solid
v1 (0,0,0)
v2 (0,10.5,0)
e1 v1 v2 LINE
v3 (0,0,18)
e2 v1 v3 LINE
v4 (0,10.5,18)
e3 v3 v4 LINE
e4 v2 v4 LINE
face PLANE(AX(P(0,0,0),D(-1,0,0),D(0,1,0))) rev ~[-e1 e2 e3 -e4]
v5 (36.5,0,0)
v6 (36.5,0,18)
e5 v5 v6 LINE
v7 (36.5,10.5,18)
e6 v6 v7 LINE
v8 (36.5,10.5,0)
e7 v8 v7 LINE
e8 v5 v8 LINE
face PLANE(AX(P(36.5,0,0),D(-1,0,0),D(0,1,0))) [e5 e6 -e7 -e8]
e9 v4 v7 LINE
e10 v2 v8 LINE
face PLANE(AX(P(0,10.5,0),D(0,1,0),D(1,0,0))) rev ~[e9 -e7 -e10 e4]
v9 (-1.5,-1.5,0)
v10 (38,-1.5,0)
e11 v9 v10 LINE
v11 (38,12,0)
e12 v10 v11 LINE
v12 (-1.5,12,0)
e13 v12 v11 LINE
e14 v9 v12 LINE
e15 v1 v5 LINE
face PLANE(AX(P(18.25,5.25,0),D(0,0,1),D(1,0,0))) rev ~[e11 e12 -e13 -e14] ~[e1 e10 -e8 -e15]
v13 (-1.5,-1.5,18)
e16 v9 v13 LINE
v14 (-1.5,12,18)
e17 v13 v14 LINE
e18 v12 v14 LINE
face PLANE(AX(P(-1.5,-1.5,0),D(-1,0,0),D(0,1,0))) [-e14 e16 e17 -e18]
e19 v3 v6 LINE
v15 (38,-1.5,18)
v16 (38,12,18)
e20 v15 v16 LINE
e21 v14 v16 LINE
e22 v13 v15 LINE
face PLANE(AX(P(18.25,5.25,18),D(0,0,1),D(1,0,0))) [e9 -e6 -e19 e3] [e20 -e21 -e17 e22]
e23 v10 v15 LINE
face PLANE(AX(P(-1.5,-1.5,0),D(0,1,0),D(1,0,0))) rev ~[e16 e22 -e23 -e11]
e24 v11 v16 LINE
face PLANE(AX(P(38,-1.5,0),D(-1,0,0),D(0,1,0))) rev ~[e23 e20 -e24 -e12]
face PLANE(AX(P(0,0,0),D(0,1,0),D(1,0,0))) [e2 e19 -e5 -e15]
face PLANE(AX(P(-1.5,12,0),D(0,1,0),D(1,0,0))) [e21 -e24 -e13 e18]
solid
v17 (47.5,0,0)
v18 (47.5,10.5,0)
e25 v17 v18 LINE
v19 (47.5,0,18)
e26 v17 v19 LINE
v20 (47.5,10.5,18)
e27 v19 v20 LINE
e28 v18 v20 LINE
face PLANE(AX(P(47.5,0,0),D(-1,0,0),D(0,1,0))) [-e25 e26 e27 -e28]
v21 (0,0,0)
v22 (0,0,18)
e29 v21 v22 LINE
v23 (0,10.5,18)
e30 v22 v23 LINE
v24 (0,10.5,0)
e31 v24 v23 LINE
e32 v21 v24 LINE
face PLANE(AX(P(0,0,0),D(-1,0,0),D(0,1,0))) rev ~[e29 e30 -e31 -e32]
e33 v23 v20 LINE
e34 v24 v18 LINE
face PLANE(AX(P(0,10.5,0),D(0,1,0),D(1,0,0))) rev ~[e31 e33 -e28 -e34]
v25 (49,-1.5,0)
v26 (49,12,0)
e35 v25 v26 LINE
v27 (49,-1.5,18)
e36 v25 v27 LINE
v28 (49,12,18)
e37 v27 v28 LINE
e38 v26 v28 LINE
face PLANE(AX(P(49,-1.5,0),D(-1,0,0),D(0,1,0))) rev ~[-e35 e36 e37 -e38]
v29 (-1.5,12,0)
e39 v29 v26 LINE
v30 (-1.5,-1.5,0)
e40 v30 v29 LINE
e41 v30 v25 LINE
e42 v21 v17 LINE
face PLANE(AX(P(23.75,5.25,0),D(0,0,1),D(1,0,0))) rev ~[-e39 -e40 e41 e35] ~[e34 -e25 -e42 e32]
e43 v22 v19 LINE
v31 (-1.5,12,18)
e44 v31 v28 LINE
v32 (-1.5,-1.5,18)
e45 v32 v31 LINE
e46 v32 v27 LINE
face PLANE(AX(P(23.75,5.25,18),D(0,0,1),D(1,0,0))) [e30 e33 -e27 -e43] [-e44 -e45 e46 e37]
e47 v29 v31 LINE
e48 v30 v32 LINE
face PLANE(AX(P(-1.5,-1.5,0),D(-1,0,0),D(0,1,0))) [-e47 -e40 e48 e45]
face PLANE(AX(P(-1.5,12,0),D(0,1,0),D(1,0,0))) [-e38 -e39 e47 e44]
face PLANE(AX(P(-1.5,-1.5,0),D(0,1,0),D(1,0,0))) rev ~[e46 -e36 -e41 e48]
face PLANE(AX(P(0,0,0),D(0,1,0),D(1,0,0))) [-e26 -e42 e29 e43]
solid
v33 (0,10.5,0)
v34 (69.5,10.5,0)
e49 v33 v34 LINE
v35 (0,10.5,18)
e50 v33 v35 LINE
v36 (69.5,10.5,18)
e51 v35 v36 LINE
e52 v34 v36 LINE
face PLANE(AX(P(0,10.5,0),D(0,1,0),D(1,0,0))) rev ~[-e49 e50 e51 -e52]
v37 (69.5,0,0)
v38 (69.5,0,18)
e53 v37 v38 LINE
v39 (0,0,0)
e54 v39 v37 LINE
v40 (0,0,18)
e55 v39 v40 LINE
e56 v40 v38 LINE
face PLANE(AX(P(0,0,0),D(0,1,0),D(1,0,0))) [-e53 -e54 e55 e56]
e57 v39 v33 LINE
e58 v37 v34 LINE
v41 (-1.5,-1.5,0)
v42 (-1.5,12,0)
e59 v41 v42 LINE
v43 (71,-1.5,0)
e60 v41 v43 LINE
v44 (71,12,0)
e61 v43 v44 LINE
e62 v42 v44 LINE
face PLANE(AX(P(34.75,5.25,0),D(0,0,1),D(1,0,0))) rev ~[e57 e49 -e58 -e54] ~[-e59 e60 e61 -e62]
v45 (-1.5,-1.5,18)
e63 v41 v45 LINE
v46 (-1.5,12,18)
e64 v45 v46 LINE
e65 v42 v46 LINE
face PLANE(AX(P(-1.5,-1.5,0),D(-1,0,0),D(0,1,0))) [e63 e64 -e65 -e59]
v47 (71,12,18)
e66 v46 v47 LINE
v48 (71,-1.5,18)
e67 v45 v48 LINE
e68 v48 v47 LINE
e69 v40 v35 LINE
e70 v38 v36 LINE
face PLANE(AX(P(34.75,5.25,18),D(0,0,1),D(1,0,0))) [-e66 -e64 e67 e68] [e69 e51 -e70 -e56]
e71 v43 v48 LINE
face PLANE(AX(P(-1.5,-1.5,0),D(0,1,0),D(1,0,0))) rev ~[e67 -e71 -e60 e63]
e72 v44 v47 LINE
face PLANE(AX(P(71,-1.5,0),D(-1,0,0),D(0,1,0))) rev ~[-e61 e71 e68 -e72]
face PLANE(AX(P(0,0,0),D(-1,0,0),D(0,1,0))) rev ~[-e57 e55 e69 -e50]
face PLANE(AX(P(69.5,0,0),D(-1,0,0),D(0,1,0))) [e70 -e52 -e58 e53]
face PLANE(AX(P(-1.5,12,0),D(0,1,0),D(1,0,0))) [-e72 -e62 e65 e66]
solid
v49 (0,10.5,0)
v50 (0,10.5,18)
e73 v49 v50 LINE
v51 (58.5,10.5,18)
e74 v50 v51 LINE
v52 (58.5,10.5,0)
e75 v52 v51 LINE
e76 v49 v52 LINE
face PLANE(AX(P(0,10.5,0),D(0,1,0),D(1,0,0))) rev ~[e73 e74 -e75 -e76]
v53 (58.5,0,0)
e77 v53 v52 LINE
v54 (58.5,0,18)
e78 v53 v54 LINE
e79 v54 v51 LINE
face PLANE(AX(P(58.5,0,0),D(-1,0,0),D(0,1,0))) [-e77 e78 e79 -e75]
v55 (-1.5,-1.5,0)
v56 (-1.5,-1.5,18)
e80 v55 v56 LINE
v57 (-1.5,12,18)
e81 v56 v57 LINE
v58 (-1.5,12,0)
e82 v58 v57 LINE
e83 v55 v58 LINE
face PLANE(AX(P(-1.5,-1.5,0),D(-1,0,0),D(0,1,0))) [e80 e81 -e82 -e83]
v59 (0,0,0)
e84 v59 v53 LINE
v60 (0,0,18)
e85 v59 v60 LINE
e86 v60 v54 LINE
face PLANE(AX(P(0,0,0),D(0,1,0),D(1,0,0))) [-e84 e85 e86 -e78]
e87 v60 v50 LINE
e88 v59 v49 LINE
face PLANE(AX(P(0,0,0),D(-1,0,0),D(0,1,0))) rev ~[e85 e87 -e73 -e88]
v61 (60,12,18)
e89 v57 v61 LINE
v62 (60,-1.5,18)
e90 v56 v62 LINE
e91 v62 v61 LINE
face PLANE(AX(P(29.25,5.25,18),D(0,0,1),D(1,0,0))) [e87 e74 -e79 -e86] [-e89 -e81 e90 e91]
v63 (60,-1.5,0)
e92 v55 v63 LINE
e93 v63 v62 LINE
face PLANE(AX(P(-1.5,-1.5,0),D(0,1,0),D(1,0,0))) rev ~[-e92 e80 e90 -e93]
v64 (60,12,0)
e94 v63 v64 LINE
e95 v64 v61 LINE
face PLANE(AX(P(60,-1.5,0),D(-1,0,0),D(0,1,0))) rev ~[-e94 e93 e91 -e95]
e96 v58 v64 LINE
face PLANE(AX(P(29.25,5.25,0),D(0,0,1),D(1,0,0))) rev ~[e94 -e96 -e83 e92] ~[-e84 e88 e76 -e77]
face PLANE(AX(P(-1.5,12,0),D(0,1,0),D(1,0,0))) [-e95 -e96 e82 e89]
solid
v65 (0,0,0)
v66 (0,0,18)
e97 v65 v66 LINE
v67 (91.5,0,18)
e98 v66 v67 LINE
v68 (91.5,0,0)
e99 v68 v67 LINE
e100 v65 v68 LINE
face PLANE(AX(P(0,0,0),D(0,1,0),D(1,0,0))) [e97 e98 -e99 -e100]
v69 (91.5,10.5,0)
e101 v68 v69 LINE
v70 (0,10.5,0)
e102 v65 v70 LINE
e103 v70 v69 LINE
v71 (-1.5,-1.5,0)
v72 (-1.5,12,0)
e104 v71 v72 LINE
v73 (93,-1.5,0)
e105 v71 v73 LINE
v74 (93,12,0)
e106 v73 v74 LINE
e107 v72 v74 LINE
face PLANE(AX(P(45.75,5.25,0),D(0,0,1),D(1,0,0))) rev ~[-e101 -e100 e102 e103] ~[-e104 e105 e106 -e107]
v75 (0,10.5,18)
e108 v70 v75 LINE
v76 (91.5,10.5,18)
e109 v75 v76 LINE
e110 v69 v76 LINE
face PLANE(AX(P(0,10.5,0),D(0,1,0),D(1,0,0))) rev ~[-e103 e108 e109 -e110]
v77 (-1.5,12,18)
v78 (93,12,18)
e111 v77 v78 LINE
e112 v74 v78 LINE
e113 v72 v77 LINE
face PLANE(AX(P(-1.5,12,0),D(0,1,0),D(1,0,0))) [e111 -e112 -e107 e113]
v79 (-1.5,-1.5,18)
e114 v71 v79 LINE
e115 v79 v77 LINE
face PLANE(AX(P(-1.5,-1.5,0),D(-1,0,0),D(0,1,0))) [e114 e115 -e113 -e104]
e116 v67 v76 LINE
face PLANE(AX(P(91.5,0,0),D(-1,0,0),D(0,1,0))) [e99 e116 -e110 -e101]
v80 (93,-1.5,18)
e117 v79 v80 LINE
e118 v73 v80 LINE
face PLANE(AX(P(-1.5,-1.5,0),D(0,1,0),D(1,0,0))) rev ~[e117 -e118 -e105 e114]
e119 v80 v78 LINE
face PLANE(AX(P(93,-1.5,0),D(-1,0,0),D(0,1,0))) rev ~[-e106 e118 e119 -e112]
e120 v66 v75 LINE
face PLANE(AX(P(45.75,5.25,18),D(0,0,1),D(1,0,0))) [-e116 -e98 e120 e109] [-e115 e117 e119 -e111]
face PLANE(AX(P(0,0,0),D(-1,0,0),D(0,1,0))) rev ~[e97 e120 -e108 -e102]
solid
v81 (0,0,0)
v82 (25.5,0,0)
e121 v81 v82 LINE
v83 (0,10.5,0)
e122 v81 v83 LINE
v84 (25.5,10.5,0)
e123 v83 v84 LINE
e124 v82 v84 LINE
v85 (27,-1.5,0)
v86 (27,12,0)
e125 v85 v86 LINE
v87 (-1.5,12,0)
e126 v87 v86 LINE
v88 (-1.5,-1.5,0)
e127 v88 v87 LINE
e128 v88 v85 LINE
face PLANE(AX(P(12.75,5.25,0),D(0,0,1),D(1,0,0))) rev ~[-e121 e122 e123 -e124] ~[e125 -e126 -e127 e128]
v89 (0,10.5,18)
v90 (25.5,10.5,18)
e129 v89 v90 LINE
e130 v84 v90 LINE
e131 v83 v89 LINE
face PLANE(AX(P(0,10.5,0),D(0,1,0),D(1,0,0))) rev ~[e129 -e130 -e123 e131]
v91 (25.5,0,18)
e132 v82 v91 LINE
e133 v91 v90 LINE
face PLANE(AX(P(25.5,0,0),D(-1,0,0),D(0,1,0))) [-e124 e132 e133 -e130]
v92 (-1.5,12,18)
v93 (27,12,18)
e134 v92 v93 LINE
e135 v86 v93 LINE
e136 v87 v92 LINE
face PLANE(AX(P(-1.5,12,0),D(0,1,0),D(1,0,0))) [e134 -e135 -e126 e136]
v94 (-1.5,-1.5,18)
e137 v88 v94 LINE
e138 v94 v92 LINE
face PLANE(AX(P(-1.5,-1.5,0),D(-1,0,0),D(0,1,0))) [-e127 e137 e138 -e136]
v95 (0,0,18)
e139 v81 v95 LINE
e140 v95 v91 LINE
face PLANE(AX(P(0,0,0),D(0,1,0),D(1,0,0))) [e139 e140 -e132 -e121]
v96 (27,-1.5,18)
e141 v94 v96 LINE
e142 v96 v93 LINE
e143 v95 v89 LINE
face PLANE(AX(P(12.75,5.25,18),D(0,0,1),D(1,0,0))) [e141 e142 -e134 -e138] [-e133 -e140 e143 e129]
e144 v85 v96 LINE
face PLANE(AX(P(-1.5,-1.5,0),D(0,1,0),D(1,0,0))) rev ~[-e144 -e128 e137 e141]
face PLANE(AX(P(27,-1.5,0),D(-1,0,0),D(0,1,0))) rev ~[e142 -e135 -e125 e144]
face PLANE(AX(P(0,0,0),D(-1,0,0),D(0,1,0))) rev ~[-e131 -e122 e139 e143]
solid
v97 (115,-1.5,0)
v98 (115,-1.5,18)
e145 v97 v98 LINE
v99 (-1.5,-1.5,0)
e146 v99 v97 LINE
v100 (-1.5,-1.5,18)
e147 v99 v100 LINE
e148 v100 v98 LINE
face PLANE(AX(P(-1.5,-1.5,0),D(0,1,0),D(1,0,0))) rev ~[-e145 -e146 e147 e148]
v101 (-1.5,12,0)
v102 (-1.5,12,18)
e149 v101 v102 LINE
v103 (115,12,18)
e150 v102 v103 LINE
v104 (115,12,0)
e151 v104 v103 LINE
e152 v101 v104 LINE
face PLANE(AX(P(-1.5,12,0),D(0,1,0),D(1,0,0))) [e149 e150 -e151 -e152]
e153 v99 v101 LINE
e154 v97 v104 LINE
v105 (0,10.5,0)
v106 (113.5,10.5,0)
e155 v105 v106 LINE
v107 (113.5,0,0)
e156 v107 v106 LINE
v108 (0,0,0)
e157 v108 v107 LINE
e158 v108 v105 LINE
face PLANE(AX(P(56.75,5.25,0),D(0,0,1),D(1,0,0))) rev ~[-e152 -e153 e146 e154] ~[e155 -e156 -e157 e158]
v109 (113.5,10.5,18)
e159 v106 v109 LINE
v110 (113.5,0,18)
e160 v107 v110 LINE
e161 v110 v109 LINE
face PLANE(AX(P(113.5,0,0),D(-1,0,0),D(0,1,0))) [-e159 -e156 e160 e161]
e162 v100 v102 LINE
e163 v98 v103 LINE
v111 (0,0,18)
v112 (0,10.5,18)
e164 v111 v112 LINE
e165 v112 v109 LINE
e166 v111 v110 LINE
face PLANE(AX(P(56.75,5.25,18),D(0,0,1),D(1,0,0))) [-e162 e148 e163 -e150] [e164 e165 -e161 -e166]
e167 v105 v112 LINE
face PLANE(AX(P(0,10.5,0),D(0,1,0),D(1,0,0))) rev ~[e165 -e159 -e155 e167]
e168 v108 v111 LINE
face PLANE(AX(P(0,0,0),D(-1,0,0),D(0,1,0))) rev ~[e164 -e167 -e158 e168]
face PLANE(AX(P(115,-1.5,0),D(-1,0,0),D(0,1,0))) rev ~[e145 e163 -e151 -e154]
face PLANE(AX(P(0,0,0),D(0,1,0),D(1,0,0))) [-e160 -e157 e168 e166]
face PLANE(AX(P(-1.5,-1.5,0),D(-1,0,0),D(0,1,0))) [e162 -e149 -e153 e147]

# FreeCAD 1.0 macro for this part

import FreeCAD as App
import Part
import Sketcher


def add_polygon(sketch, points):
    """Adds a closed chain of lines whose ends are joined by coincident constraints."""
    first, n = sketch.GeometryCount, len(points)
    for a, b in zip(points, points[1:] + points[:1]):
        sketch.addGeometry(Part.LineSegment(App.Vector(*a, 0), App.Vector(*b, 0)), False)
    for i in range(n):
        sketch.addConstraint(Sketcher.Constraint("Coincident", first + i, 2, first + (i + 1) % n, 1))

doc = App.newDocument("Part")
body = doc.addObject("PartDesign::Body", "Body")

sketch1 = body.newObject("Sketcher::SketchObject", "Sketch")
sketch1.AttachmentSupport = (doc.getObject("XY_Plane"), [""])
sketch1.MapMode = "FlatFace"
add_polygon(sketch1, [(-1.5, 12), (-1.5, -1.5), (71, -1.5), (71, 12)])
add_polygon(sketch1, [(69.5, 0), (0, 0), (0, 10.5), (69.5, 10.5)])
sketch1.addConstraint([
    Sketcher.Constraint("Vertical", 0),
    Sketcher.Constraint("Horizontal", 1),
    Sketcher.Constraint("Vertical", 2),
    Sketcher.Constraint("Horizontal", 3),
    Sketcher.Constraint("Horizontal", 4),
    Sketcher.Constraint("Vertical", 5),
    Sketcher.Constraint("Horizontal", 6),
    Sketcher.Constraint("Vertical", 7),
    Sketcher.Constraint("Coincident", 4, 2, -1, 1),
    Sketcher.Constraint("DistanceX", 1, 1, 1, 2, 72.5),
    Sketcher.Constraint("DistanceX", 4, 2, 4, 1, 69.5),
    Sketcher.Constraint("DistanceY", 0, 2, 0, 1, 13.5),
    Sketcher.Constraint("DistanceY", 5, 1, 5, 2, 10.5),
    Sketcher.Constraint("DistanceX", -1, 1, 1, 2, 71.0),
    Sketcher.Constraint("DistanceY", -1, 1, 2, 2, 12.0),
])
pad1 = body.newObject("PartDesign::Pad", "Pad")
pad1.Profile = sketch1
pad1.Length = 18
body2 = doc.addObject("PartDesign::Body", "Body001")

sketch2 = body2.newObject("Sketcher::SketchObject", "Sketch001")
sketch2.AttachmentSupport = (doc.getObject("XY_Plane001"), [""])
sketch2.MapMode = "FlatFace"
add_polygon(sketch2, [(-1.5, 12), (-1.5, -1.5), (27, -1.5), (27, 12)])
add_polygon(sketch2, [(25.5, 0), (0, 0), (0, 10.5), (25.5, 10.5)])
sketch2.addConstraint([
    Sketcher.Constraint("Vertical", 0),
    Sketcher.Constraint("Horizontal", 1),
    Sketcher.Constraint("Vertical", 2),
    Sketcher.Constraint("Horizontal", 3),
    Sketcher.Constraint("Horizontal", 4),
    Sketcher.Constraint("Vertical", 5),
    Sketcher.Constraint("Horizontal", 6),
    Sketcher.Constraint("Vertical", 7),
    Sketcher.Constraint("Coincident", 4, 2, -1, 1),
    Sketcher.Constraint("DistanceX", 1, 1, 1, 2, 28.5),
    Sketcher.Constraint("DistanceX", 4, 2, 4, 1, 25.5),
    Sketcher.Constraint("DistanceY", 0, 2, 0, 1, 13.5),
    Sketcher.Constraint("DistanceY", 5, 1, 5, 2, 10.5),
    Sketcher.Constraint("DistanceX", -1, 1, 1, 2, 27.0),
    Sketcher.Constraint("DistanceY", -1, 1, 2, 2, 12.0),
])
pad2 = body2.newObject("PartDesign::Pad", "Pad001")
pad2.Profile = sketch2
pad2.Length = 18
body3 = doc.addObject("PartDesign::Body", "Body002")

sketch3 = body3.newObject("Sketcher::SketchObject", "Sketch002")
sketch3.AttachmentSupport = (doc.getObject("XY_Plane002"), [""])
sketch3.MapMode = "FlatFace"
add_polygon(sketch3, [(-1.5, 12), (-1.5, -1.5), (38, -1.5), (38, 12)])
add_polygon(sketch3, [(36.5, 0), (0, 0), (0, 10.5), (36.5, 10.5)])
sketch3.addConstraint([
    Sketcher.Constraint("Vertical", 0),
    Sketcher.Constraint("Horizontal", 1),
    Sketcher.Constraint("Vertical", 2),
    Sketcher.Constraint("Horizontal", 3),
    Sketcher.Constraint("Horizontal", 4),
    Sketcher.Constraint("Vertical", 5),
    Sketcher.Constraint("Horizontal", 6),
    Sketcher.Constraint("Vertical", 7),
    Sketcher.Constraint("Coincident", 4, 2, -1, 1),
    Sketcher.Constraint("DistanceX", 1, 1, 1, 2, 39.5),
    Sketcher.Constraint("DistanceX", 4, 2, 4, 1, 36.5),
    Sketcher.Constraint("DistanceY", 0, 2, 0, 1, 13.5),
    Sketcher.Constraint("DistanceY", 5, 1, 5, 2, 10.5),
    Sketcher.Constraint("DistanceX", -1, 1, 1, 2, 38.0),
    Sketcher.Constraint("DistanceY", -1, 1, 2, 2, 12.0),
])
pad3 = body3.newObject("PartDesign::Pad", "Pad002")
pad3.Profile = sketch3
pad3.Length = 18
body4 = doc.addObject("PartDesign::Body", "Body003")

sketch4 = body4.newObject("Sketcher::SketchObject", "Sketch003")
sketch4.AttachmentSupport = (doc.getObject("XY_Plane003"), [""])
sketch4.MapMode = "FlatFace"
add_polygon(sketch4, [(-1.5, 12), (-1.5, -1.5), (49, -1.5), (49, 12)])
add_polygon(sketch4, [(47.5, 0), (0, 0), (0, 10.5), (47.5, 10.5)])
sketch4.addConstraint([
    Sketcher.Constraint("Vertical", 0),
    Sketcher.Constraint("Horizontal", 1),
    Sketcher.Constraint("Vertical", 2),
    Sketcher.Constraint("Horizontal", 3),
    Sketcher.Constraint("Horizontal", 4),
    Sketcher.Constraint("Vertical", 5),
    Sketcher.Constraint("Horizontal", 6),
    Sketcher.Constraint("Vertical", 7),
    Sketcher.Constraint("Coincident", 4, 2, -1, 1),
    Sketcher.Constraint("DistanceX", 1, 1, 1, 2, 50.5),
    Sketcher.Constraint("DistanceX", 4, 2, 4, 1, 47.5),
    Sketcher.Constraint("DistanceY", 0, 2, 0, 1, 13.5),
    Sketcher.Constraint("DistanceY", 5, 1, 5, 2, 10.5),
    Sketcher.Constraint("DistanceX", -1, 1, 1, 2, 49.0),
    Sketcher.Constraint("DistanceY", -1, 1, 2, 2, 12.0),
])
pad4 = body4.newObject("PartDesign::Pad", "Pad003")
pad4.Profile = sketch4
pad4.Length = 18
body5 = doc.addObject("PartDesign::Body", "Body004")

sketch5 = body5.newObject("Sketcher::SketchObject", "Sketch004")
sketch5.AttachmentSupport = (doc.getObject("XY_Plane004"), [""])
sketch5.MapMode = "FlatFace"
add_polygon(sketch5, [(-1.5, 12), (-1.5, -1.5), (60, -1.5), (60, 12)])
add_polygon(sketch5, [(58.5, 0), (0, 0), (0, 10.5), (58.5, 10.5)])
sketch5.addConstraint([
    Sketcher.Constraint("Vertical", 0),
    Sketcher.Constraint("Horizontal", 1),
    Sketcher.Constraint("Vertical", 2),
    Sketcher.Constraint("Horizontal", 3),
    Sketcher.Constraint("Horizontal", 4),
    Sketcher.Constraint("Vertical", 5),
    Sketcher.Constraint("Horizontal", 6),
    Sketcher.Constraint("Vertical", 7),
    Sketcher.Constraint("Coincident", 4, 2, -1, 1),
    Sketcher.Constraint("DistanceX", 1, 1, 1, 2, 61.5),
    Sketcher.Constraint("DistanceX", 4, 2, 4, 1, 58.5),
    Sketcher.Constraint("DistanceY", 0, 2, 0, 1, 13.5),
    Sketcher.Constraint("DistanceY", 5, 1, 5, 2, 10.5),
    Sketcher.Constraint("DistanceX", -1, 1, 1, 2, 60.0),
    Sketcher.Constraint("DistanceY", -1, 1, 2, 2, 12.0),
])
pad5 = body5.newObject("PartDesign::Pad", "Pad004")
pad5.Profile = sketch5
pad5.Length = 18
body6 = doc.addObject("PartDesign::Body", "Body005")

sketch6 = body6.newObject("Sketcher::SketchObject", "Sketch005")
sketch6.AttachmentSupport = (doc.getObject("XY_Plane005"), [""])
sketch6.MapMode = "FlatFace"
add_polygon(sketch6, [(-1.5, 12), (-1.5, -1.5), (93, -1.5), (93, 12)])
add_polygon(sketch6, [(91.5, 0), (0, 0), (0, 10.5), (91.5, 10.5)])
sketch6.addConstraint([
    Sketcher.Constraint("Vertical", 0),
    Sketcher.Constraint("Horizontal", 1),
    Sketcher.Constraint("Vertical", 2),
    Sketcher.Constraint("Horizontal", 3),
    Sketcher.Constraint("Horizontal", 4),
    Sketcher.Constraint("Vertical", 5),
    Sketcher.Constraint("Horizontal", 6),
    Sketcher.Constraint("Vertical", 7),
    Sketcher.Constraint("Coincident", 4, 2, -1, 1),
    Sketcher.Constraint("DistanceX", 1, 1, 1, 2, 94.5),
    Sketcher.Constraint("DistanceX", 4, 2, 4, 1, 91.5),
    Sketcher.Constraint("DistanceY", 0, 2, 0, 1, 13.5),
    Sketcher.Constraint("DistanceY", 5, 1, 5, 2, 10.5),
    Sketcher.Constraint("DistanceX", -1, 1, 1, 2, 93.0),
    Sketcher.Constraint("DistanceY", -1, 1, 2, 2, 12.0),
])
pad6 = body6.newObject("PartDesign::Pad", "Pad005")
pad6.Profile = sketch6
pad6.Length = 18
body7 = doc.addObject("PartDesign::Body", "Body006")

sketch7 = body7.newObject("Sketcher::SketchObject", "Sketch006")
sketch7.AttachmentSupport = (doc.getObject("XY_Plane006"), [""])
sketch7.MapMode = "FlatFace"
add_polygon(sketch7, [(-1.5, 12), (-1.5, -1.5), (115, -1.5), (115, 12)])
add_polygon(sketch7, [(113.5, 0), (0, 0), (0, 10.5), (113.5, 10.5)])
sketch7.addConstraint([
    Sketcher.Constraint("Vertical", 0),
    Sketcher.Constraint("Horizontal", 1),
    Sketcher.Constraint("Vertical", 2),
    Sketcher.Constraint("Horizontal", 3),
    Sketcher.Constraint("Horizontal", 4),
    Sketcher.Constraint("Vertical", 5),
    Sketcher.Constraint("Horizontal", 6),
    Sketcher.Constraint("Vertical", 7),
    Sketcher.Constraint("Coincident", 4, 2, -1, 1),
    Sketcher.Constraint("DistanceX", 1, 1, 1, 2, 116.5),
    Sketcher.Constraint("DistanceX", 4, 2, 4, 1, 113.5),
    Sketcher.Constraint("DistanceY", 0, 2, 0, 1, 13.5),
    Sketcher.Constraint("DistanceY", 5, 1, 5, 2, 10.5),
    Sketcher.Constraint("DistanceX", -1, 1, 1, 2, 115.0),
    Sketcher.Constraint("DistanceY", -1, 1, 2, 2, 12.0),
])
pad7 = body7.newObject("PartDesign::Pad", "Pad006")
pad7.Profile = sketch7
pad7.Length = 18

doc.recompute()
